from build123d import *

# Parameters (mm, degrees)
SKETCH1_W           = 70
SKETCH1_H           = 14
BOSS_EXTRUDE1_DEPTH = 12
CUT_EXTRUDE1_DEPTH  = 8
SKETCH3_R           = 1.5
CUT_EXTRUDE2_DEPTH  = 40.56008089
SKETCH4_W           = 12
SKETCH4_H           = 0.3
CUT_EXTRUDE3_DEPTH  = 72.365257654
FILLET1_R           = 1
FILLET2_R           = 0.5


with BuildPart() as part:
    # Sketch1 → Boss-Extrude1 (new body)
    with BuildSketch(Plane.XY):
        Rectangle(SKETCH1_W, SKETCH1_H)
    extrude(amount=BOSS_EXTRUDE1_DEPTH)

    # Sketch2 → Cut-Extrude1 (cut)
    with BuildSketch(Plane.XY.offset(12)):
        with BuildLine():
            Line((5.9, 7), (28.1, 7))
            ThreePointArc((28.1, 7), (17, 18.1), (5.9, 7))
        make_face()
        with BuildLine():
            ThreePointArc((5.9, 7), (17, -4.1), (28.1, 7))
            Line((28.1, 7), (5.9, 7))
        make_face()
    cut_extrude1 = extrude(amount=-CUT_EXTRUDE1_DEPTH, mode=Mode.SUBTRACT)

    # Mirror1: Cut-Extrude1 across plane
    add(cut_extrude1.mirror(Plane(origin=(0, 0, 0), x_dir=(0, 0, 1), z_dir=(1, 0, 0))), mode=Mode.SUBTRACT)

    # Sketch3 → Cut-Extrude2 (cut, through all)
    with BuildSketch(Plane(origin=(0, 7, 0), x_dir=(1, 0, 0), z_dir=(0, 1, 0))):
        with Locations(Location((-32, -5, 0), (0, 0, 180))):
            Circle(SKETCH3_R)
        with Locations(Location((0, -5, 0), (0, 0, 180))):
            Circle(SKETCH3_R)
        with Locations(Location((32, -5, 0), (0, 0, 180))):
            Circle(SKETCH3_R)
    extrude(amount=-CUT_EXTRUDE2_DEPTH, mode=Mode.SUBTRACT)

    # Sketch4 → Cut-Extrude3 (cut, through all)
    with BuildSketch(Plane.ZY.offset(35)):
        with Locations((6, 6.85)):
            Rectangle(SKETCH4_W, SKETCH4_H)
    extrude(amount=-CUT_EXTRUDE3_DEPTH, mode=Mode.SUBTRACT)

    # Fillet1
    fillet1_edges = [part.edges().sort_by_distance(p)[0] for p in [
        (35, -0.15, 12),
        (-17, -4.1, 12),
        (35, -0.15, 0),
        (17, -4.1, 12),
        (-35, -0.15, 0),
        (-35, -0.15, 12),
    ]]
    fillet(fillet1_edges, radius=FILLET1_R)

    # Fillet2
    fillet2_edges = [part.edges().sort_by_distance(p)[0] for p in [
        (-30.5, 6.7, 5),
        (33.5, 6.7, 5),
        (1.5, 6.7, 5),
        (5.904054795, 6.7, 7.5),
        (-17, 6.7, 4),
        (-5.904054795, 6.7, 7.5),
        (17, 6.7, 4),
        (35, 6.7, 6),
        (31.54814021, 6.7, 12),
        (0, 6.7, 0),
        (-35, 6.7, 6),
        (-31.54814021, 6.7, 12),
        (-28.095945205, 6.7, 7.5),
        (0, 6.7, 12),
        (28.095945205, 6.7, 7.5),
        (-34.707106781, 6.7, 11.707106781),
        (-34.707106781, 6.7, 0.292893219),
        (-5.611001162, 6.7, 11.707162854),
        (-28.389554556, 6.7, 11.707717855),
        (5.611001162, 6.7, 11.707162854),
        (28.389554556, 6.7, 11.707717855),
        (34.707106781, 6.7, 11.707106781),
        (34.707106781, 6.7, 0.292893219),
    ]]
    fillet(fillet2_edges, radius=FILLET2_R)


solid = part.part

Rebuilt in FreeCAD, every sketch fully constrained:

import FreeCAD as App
import Part
import Sketcher
Q = App.Units.Quantity


def edges_at(feature, points):
    """Names of the edges that pass closest to the given points."""
    edges = feature.Shape.Edges
    near = lambda p: min(range(len(edges)), key=lambda i: edges[i].distToShape(Part.Vertex(*p))[0])
    return sorted({f"Edge{near(p) + 1}" for p in points})


def add_polygon(sketch, points):
    """Adds a closed chain of lines whose ends are joined by coincident constraints."""
    first, n = sketch.GeometryCount, len(points)
    for a, b in zip(points, points[1:] + points[:1]):
        sketch.addGeometry(Part.LineSegment(App.Vector(*a, 0), App.Vector(*b, 0)), False)
    for i in range(n):
        sketch.addConstraint(Sketcher.Constraint("Coincident", first + i, 2, first + (i + 1) % n, 1))

doc = App.newDocument("Part")
body = doc.addObject("PartDesign::Body", "Body")

# Sketch on XY plane
sketch1 = body.newObject("Sketcher::SketchObject", "Sketch")
sketch1.AttachmentSupport = (doc.getObject("XY_Plane"), [""])
sketch1.MapMode = "FlatFace"
add_polygon(sketch1, [(-35, 7), (-35, -7), (35, -7), (35, 7)])  # lines 0-3
sketch1.addConstraint(Sketcher.Constraint("Vertical", 0))
sketch1.addConstraint(Sketcher.Constraint("Horizontal", 1))
sketch1.addConstraint(Sketcher.Constraint("Vertical", 2))
sketch1.addConstraint(Sketcher.Constraint("Horizontal", 3))
sketch1.addConstraint(Sketcher.Constraint("Symmetric", 0, 2, 2, 2, -1, 1))
sketch1.addConstraint(Sketcher.Constraint("DistanceX", 1, 1, 1, 2, Q("70 mm")))
sketch1.addConstraint(Sketcher.Constraint("DistanceY", 0, 2, 0, 1, Q("14 mm")))
pad1 = body.newObject("PartDesign::Pad", "Pad")
pad1.Profile = sketch1
pad1.Length = 12

# Sketch on XY plane
sketch2 = body.newObject("Sketcher::SketchObject", "Sketch001")
sketch2.AttachmentSupport = (doc.getObject("XY_Plane"), [""])
sketch2.MapMode = "FlatFace"
sketch2.AttachmentOffset = App.Placement(App.Vector(0, 0, 12), App.Rotation())
sketch2.addGeometry(Part.Circle(App.Vector(17, 7, 0), App.Vector(0, 0, 1), 11.1), False)
sketch2.addConstraint(Sketcher.Constraint("Diameter", 0, Q("22.2 mm")))
sketch2.addConstraint(Sketcher.Constraint("DistanceX", -1, 1, 0, 3, Q("17 mm")))
sketch2.addConstraint(Sketcher.Constraint("DistanceY", -1, 1, 0, 3, Q("7 mm")))
pocket1 = body.newObject("PartDesign::Pocket", "Pocket")
pocket1.Profile = sketch2
pocket1.Length = 8
doc.recompute()

mirrored = body.newObject("PartDesign::Mirrored", "Mirrored")
mirrored.Originals = [pocket1]
mirrored.MirrorPlane = (doc.getObject("YZ_Plane"), [""])
body.Tip = mirrored

# Sketch on XZ plane
sketch3 = body.newObject("Sketcher::SketchObject", "Sketch002")
sketch3.AttachmentSupport = (doc.getObject("XZ_Plane"), [""])
sketch3.MapMode = "FlatFace"
sketch3.AttachmentOffset = App.Placement(App.Vector(0, 0, -7), App.Rotation())
sketch3.addGeometry(Part.Circle(App.Vector(-32, 5, 0), App.Vector(0, 0, 1), 1.5), False)
sketch3.addGeometry(Part.Circle(App.Vector(0, 5, 0), App.Vector(0, 0, 1), 1.5), False)
sketch3.addGeometry(Part.Circle(App.Vector(32, 5, 0), App.Vector(0, 0, 1), 1.5), False)
sketch3.addConstraint(Sketcher.Constraint("Equal", 0, 1))
sketch3.addConstraint(Sketcher.Constraint("Equal", 1, 2))
sketch3.addConstraint(Sketcher.Constraint("Symmetric", 0, 3, 2, 3, -2))
sketch3.addConstraint(Sketcher.Constraint("PointOnObject", 1, 3, -2))
sketch3.addConstraint(Sketcher.Constraint("Horizontal", 0, 3, 1, 3))
sketch3.addConstraint(Sketcher.Constraint("Diameter", 0, Q("3 mm")))
sketch3.addConstraint(Sketcher.Constraint("DistanceX", 0, 3, -1, 1, Q("32 mm")))
sketch3.addConstraint(Sketcher.Constraint("DistanceY", -1, 1, 0, 3, Q("5 mm")))
pocket2 = body.newObject("PartDesign::Pocket", "Pocket001")
pocket2.Profile = sketch3
pocket2.Type = "ThroughAll"
pocket2.Reversed = True

# Sketch on YZ plane
sketch4 = body.newObject("Sketcher::SketchObject", "Sketch003")
sketch4.AttachmentSupport = (doc.getObject("YZ_Plane"), [""])
sketch4.MapMode = "FlatFace"
sketch4.AttachmentOffset = App.Placement(App.Vector(0, 0, -35), App.Rotation())
add_polygon(sketch4, [(7, 0), (6.7, 0), (6.7, 12), (7, 12)])  # lines 0-3
sketch4.addConstraint(Sketcher.Constraint("Horizontal", 0))
sketch4.addConstraint(Sketcher.Constraint("Vertical", 1))
sketch4.addConstraint(Sketcher.Constraint("Horizontal", 2))
sketch4.addConstraint(Sketcher.Constraint("Vertical", 3))
sketch4.addConstraint(Sketcher.Constraint("PointOnObject", 0, 2, -1))
sketch4.addConstraint(Sketcher.Constraint("DistanceY", 1, 1, 1, 2, Q("12 mm")))
sketch4.addConstraint(Sketcher.Constraint("DistanceX", 0, 2, 0, 1, Q("0.3 mm")))
sketch4.addConstraint(Sketcher.Constraint("DistanceX", -1, 1, 2, 2, Q("7 mm")))
pocket3 = body.newObject("PartDesign::Pocket", "Pocket002")
pocket3.Profile = sketch4
pocket3.Type = "ThroughAll"
pocket3.Reversed = True
doc.recompute()

fillet = body.newObject("PartDesign::Fillet", "Fillet")
fillet.Base = (pocket3, edges_at(pocket3, [
    (35, -0.15, 12),
    (-17, -4.1, 12),
    (35, -0.15, 0),
    (17, -4.1, 12),
    (-35, -0.15, 0),
    (-35, -0.15, 12),
]))
fillet.Radius = 1
doc.recompute()

fillet2 = body.newObject("PartDesign::Fillet", "Fillet001")
fillet2.Base = (fillet, edges_at(fillet, [
    (-30.5, 6.7, 5),
    (33.5, 6.7, 5),
    (1.5, 6.7, 5),
    (5.904, 6.7, 7.5),
    (-17, 6.7, 4),
    (-5.904, 6.7, 7.5),
    (17, 6.7, 4),
    (35, 6.7, 6),
    (31.548, 6.7, 12),
    (0, 6.7, 0),
    (-35, 6.7, 6),
    (-31.548, 6.7, 12),
    (-28.096, 6.7, 7.5),
    (0, 6.7, 12),
    (28.096, 6.7, 7.5),
    (-34.707, 6.7, 11.707),
    (-34.707, 6.7, 0.293),
    (-5.61, 6.7, 11.708),
    (-28.389, 6.7, 11.707),
    (5.61, 6.7, 11.708),
    (28.389, 6.7, 11.707),
    (34.707, 6.7, 11.707),
    (34.707, 6.7, 0.293),
]))
fillet2.Radius = 0.5

doc.recompute()
